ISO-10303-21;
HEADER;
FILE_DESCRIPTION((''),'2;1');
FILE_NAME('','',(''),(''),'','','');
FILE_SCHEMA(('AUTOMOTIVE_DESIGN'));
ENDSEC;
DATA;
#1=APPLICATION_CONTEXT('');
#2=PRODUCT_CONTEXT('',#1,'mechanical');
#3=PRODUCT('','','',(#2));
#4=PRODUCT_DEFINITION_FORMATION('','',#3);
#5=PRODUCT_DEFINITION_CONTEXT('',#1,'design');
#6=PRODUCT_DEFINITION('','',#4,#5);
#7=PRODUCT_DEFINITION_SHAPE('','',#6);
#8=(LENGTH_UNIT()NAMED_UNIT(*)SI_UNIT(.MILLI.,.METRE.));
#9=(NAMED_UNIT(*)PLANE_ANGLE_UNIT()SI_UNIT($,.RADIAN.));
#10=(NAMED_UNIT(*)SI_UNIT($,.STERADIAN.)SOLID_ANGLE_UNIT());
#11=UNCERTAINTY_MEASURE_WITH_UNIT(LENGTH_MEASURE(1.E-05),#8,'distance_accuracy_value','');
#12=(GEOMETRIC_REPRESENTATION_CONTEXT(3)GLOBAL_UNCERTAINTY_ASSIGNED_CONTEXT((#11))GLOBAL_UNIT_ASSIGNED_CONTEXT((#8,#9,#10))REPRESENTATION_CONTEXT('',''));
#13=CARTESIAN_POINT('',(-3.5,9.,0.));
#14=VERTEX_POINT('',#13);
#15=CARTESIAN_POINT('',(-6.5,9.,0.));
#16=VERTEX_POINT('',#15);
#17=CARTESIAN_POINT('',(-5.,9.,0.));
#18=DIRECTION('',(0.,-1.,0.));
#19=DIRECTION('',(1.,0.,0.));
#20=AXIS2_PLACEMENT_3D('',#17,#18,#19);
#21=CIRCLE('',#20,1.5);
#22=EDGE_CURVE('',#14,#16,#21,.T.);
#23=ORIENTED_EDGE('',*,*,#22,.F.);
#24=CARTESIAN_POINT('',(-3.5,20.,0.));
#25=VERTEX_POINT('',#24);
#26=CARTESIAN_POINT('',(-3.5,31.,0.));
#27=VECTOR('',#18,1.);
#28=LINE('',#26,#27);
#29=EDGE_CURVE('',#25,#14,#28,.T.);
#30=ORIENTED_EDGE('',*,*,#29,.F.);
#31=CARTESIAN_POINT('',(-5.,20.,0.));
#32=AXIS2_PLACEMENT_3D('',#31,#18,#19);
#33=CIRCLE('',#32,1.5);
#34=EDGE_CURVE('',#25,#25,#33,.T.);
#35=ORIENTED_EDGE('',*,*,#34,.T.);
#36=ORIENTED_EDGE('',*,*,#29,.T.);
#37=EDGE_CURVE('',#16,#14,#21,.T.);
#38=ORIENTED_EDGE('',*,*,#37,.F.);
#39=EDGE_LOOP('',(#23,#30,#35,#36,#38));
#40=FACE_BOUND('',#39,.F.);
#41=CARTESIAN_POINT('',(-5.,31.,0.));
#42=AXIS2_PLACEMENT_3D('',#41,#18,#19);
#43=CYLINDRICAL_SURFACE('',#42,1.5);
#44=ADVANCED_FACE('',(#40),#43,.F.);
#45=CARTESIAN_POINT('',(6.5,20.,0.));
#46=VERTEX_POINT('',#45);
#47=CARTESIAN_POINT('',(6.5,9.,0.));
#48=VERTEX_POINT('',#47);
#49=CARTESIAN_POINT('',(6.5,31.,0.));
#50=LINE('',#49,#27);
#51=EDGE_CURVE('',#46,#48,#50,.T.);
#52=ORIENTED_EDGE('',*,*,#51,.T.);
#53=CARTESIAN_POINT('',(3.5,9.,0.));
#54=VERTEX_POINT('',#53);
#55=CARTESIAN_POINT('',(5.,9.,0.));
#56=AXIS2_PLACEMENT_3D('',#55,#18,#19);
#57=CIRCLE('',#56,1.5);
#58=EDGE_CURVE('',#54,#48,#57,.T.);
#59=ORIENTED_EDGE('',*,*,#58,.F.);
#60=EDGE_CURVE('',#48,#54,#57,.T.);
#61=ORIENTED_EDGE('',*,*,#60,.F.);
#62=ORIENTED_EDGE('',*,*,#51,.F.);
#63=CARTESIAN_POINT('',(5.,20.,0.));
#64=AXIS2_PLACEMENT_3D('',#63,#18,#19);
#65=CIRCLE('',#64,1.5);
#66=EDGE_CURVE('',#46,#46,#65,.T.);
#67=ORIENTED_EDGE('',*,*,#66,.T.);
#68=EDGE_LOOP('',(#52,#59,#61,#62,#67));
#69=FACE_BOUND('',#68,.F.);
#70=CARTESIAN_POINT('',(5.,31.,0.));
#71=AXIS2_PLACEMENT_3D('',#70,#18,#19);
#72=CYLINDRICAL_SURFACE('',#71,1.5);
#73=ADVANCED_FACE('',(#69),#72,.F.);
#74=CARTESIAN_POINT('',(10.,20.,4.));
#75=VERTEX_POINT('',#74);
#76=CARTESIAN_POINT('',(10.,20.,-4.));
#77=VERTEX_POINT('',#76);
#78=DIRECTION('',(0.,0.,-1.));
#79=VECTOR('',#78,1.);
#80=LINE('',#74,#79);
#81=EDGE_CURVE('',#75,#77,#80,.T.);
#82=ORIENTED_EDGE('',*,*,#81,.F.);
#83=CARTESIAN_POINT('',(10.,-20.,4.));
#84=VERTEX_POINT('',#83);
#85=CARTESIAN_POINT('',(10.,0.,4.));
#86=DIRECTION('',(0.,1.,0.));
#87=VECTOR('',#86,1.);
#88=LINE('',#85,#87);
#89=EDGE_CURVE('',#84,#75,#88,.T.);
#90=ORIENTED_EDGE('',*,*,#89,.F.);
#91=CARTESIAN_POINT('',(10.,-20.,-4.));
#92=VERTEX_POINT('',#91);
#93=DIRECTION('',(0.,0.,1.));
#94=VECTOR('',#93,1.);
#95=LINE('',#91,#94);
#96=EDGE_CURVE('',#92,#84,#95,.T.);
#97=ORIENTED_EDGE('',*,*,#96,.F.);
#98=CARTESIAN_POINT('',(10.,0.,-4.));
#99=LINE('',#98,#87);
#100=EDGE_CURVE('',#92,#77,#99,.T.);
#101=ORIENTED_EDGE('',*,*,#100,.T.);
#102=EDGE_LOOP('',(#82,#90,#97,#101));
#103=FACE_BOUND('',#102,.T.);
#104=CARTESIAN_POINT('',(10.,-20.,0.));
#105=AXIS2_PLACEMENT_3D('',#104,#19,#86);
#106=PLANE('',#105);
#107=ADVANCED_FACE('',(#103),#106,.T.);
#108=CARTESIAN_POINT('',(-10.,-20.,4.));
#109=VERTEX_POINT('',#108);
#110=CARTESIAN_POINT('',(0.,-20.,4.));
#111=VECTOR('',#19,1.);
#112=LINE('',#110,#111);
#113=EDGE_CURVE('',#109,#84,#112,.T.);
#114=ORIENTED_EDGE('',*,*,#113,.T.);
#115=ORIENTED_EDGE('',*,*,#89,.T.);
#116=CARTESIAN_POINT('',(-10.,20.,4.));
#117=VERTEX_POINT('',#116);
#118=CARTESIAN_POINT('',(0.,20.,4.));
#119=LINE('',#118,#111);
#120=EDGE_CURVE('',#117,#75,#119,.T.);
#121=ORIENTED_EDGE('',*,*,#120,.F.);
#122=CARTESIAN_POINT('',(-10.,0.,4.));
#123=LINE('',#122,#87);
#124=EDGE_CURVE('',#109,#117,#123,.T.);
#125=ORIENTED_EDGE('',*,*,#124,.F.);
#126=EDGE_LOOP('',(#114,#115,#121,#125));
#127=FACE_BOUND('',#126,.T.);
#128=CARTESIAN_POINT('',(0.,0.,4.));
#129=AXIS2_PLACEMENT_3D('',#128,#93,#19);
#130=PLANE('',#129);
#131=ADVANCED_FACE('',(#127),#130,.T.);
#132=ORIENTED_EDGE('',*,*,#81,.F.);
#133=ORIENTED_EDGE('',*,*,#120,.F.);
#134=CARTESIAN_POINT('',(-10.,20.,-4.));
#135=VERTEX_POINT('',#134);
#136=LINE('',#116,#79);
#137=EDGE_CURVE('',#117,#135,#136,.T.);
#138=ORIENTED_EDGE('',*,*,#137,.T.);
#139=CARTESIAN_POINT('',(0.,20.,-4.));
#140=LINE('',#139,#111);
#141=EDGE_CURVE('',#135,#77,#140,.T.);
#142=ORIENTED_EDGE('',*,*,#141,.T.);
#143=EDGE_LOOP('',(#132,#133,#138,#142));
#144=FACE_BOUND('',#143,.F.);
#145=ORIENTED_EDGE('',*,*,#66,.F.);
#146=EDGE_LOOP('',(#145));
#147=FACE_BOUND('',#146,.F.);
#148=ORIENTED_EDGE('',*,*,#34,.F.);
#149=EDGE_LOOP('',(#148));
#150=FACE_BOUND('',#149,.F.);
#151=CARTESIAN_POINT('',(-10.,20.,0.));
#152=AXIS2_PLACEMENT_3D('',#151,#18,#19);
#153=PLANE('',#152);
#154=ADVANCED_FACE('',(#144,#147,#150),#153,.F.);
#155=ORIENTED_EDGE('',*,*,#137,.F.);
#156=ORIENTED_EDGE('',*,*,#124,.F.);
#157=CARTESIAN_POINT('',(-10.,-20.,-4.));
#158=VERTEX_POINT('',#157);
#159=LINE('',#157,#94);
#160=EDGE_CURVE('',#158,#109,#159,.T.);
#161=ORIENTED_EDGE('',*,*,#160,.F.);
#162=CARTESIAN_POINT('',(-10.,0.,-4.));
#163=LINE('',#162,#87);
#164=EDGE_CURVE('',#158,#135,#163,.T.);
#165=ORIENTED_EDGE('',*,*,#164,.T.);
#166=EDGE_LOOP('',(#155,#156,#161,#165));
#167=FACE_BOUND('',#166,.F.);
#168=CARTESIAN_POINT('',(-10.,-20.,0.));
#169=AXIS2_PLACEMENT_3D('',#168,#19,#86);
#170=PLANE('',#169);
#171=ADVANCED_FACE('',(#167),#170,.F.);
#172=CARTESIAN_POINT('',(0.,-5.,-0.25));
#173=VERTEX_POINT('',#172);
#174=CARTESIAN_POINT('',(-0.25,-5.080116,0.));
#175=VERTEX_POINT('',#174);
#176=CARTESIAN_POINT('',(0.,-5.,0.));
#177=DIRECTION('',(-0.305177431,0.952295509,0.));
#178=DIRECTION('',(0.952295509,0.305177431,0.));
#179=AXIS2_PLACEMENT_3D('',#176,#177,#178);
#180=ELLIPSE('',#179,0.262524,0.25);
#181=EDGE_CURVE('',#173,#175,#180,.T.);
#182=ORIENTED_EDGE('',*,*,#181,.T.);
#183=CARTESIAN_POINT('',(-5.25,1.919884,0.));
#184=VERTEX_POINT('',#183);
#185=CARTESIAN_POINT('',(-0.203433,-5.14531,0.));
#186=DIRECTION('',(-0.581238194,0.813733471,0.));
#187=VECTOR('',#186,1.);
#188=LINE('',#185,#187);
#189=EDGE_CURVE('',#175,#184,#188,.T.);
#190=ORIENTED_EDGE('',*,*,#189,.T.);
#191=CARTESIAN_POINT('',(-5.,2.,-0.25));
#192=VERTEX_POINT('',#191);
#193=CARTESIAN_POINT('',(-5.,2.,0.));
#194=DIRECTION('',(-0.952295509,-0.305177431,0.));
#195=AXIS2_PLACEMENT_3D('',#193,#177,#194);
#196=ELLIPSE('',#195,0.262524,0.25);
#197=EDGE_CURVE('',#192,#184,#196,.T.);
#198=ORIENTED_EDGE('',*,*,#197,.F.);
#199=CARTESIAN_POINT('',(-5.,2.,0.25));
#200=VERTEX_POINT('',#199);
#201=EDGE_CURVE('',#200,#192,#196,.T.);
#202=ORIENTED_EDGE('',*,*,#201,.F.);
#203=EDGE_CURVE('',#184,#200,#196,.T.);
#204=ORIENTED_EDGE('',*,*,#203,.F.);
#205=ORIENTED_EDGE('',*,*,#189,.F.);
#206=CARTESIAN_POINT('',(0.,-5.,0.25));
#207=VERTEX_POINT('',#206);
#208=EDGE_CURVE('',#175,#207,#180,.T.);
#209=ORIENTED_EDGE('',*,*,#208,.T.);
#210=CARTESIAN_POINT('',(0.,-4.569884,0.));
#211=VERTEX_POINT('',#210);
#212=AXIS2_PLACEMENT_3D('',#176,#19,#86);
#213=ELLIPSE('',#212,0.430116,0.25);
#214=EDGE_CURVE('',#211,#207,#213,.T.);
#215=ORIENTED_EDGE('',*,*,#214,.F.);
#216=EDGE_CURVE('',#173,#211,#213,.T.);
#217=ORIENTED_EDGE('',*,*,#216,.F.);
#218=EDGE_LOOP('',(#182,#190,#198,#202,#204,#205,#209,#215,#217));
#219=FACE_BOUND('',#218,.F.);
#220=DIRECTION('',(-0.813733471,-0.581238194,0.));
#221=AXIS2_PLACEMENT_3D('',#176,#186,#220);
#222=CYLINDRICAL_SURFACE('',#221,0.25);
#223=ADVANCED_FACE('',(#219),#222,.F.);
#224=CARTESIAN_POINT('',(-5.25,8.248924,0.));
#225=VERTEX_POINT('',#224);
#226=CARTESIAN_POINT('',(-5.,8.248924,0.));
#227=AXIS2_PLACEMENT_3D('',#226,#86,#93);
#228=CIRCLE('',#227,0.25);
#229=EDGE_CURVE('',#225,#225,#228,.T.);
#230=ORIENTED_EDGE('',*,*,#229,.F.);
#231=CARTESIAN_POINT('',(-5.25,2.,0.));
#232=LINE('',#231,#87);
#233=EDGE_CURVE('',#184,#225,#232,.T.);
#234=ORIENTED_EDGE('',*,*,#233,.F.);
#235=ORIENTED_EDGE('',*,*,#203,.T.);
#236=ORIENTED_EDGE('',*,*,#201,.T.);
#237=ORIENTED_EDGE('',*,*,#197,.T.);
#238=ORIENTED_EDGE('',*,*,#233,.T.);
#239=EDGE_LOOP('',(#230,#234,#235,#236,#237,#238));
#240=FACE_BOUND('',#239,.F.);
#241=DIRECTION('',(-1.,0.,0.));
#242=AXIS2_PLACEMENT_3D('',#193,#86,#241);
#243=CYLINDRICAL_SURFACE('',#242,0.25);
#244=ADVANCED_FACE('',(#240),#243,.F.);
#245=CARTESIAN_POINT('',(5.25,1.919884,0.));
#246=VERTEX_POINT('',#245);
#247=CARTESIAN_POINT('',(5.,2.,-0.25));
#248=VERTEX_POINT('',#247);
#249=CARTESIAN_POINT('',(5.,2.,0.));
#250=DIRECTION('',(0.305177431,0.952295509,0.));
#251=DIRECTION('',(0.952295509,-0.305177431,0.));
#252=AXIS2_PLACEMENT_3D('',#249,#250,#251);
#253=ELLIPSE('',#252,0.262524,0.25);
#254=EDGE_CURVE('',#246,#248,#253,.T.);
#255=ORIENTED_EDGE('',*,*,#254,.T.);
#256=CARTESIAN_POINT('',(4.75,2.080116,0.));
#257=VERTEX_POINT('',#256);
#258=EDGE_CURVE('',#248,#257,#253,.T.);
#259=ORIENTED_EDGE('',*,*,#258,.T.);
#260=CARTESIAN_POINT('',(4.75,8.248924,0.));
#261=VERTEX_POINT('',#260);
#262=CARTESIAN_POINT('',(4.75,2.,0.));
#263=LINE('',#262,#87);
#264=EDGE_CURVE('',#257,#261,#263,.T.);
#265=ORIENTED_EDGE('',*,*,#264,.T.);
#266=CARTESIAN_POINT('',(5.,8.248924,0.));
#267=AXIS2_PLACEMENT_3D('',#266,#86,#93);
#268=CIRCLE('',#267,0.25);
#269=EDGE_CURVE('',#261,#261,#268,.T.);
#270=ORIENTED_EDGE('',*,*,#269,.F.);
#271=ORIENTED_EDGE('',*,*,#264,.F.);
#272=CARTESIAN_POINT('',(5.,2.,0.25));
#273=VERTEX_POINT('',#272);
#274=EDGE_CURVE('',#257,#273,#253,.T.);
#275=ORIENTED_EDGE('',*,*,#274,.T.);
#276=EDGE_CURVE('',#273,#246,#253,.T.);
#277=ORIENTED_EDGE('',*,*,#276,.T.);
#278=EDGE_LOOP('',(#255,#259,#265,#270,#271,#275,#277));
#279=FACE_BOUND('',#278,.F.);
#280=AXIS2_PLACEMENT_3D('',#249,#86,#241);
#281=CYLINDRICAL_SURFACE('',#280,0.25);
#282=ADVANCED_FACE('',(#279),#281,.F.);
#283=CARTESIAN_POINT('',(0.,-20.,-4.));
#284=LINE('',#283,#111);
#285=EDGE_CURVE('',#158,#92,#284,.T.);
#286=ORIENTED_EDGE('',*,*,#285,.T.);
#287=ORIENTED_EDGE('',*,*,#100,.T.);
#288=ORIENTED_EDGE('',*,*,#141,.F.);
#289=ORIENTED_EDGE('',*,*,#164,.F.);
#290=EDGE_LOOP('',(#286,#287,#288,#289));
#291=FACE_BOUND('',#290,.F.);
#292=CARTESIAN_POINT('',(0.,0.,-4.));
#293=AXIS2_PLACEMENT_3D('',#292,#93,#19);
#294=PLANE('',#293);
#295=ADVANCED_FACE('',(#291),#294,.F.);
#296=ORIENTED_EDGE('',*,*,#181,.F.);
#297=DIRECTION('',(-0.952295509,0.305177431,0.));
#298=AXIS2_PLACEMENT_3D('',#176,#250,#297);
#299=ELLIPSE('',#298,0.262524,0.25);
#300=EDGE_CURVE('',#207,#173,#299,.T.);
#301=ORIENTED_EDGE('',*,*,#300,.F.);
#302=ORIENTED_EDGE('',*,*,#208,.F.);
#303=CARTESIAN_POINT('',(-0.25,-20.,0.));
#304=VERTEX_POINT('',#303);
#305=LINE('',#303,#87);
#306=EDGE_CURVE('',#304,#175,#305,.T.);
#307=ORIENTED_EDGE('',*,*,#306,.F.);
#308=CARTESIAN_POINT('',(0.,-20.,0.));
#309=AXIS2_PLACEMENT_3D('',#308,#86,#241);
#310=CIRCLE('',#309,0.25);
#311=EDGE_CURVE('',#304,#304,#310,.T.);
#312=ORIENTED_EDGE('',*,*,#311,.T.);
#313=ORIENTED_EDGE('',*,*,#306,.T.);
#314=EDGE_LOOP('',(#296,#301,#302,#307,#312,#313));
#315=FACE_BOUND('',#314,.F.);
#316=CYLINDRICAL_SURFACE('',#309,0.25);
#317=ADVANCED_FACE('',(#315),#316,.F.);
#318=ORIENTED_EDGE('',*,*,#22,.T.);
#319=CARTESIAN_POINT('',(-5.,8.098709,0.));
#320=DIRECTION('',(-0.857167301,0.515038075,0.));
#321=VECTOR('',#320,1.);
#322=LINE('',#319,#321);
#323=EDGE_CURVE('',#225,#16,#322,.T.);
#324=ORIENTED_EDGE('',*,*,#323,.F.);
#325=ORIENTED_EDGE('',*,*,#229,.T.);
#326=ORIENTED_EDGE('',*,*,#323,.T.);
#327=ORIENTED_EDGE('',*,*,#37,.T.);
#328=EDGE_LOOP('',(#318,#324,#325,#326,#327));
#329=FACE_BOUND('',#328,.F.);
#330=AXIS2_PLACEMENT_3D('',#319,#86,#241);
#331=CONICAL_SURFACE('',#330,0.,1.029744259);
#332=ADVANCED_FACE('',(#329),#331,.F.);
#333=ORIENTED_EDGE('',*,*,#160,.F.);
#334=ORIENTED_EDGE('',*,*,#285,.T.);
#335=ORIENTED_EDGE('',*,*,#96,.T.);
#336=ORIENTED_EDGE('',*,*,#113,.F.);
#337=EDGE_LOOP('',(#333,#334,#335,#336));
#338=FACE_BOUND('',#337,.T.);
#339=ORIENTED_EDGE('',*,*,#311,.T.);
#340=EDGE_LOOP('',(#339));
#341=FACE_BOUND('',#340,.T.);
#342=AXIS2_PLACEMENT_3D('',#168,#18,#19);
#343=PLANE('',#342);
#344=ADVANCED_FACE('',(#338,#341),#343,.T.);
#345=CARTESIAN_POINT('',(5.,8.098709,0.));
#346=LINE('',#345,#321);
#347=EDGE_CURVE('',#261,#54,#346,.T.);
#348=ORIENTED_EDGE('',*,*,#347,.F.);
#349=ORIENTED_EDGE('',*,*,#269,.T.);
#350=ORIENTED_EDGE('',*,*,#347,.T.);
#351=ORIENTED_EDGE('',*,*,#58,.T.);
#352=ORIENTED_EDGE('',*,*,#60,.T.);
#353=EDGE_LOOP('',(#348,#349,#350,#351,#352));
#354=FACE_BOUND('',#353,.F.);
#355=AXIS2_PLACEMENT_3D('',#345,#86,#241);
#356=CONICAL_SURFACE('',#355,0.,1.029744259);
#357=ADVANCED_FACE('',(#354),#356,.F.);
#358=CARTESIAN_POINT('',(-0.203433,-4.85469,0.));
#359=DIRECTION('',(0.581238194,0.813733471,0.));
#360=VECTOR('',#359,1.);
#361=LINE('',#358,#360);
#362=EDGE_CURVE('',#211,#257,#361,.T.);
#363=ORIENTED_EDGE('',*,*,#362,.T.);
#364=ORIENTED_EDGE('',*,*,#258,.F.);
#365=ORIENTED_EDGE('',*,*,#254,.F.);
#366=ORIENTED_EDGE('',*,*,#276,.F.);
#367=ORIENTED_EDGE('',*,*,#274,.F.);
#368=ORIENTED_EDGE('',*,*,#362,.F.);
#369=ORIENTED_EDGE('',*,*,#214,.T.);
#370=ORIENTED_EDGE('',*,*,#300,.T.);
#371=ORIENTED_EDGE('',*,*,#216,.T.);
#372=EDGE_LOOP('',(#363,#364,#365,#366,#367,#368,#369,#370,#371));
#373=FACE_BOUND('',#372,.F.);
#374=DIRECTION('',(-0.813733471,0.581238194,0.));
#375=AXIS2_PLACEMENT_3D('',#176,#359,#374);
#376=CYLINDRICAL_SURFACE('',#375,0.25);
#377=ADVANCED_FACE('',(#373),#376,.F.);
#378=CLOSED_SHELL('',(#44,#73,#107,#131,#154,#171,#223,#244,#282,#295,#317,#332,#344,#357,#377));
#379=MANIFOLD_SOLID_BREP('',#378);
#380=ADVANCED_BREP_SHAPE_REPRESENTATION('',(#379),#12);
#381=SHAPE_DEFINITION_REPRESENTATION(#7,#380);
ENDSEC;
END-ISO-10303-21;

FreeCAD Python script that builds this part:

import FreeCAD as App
import Part
import Sketcher


def add_polygon(sketch, points):
    """Adds a closed chain of lines whose ends are joined by coincident constraints."""
    first, n = sketch.GeometryCount, len(points)
    for a, b in zip(points, points[1:] + points[:1]):
        sketch.addGeometry(Part.LineSegment(App.Vector(*a, 0), App.Vector(*b, 0)), False)
    for i in range(n):
        sketch.addConstraint(Sketcher.Constraint("Coincident", first + i, 2, first + (i + 1) % n, 1))

doc = App.newDocument("Part")
body = doc.addObject("PartDesign::Body", "Body")

# Sketch on XY plane
sketch1 = body.newObject("Sketcher::SketchObject", "Sketch")
sketch1.AttachmentSupport = (doc.getObject("XY_Plane"), [""])
sketch1.MapMode = "FlatFace"
add_polygon(sketch1, [(-10, 20), (-10, -20), (10, -20), (10, 20)])  # lines 0-3
sketch1.addConstraint(Sketcher.Constraint("Vertical", 0))
sketch1.addConstraint(Sketcher.Constraint("Horizontal", 1))
sketch1.addConstraint(Sketcher.Constraint("Vertical", 2))
sketch1.addConstraint(Sketcher.Constraint("Horizontal", 3))
sketch1.addConstraint(Sketcher.Constraint("Symmetric", 0, 2, 2, 2, -1, 1))
sketch1.addConstraint(Sketcher.Constraint("DistanceX", 1, 1, 1, 2, 20.0))
sketch1.addConstraint(Sketcher.Constraint("DistanceY", 0, 2, 0, 1, 40.0))
pad1 = body.newObject("PartDesign::Pad", "Pad")
pad1.Profile = sketch1
pad1.Type = "TwoLengths"
pad1.Length = 4
pad1.Length2 = 4

# Sketch on XZ plane
sketch2 = body.newObject("Sketcher::SketchObject", "Sketch001")
sketch2.AttachmentSupport = (doc.getObject("XZ_Plane"), [""])
sketch2.MapMode = "FlatFace"
sketch2.AttachmentOffset = App.Placement(App.Vector(0, 0, -20), App.Rotation())
sketch2.addGeometry(Part.Circle(App.Vector(5, 0, 0), App.Vector(0, 0, 1), 0.25), False)
sketch2.addConstraint(Sketcher.Constraint("PointOnObject", 0, 3, -1))
sketch2.addConstraint(Sketcher.Constraint("Diameter", 0, 0.5))
sketch2.addConstraint(Sketcher.Constraint("DistanceX", -1, 1, 0, 3, 5.0))

# Sketch on XY plane
sketch3 = body.newObject("Sketcher::SketchObject", "Sketch002")
sketch3.AttachmentSupport = (doc.getObject("XY_Plane"), [""])
sketch3.MapMode = "FlatFace"
sketch3.addGeometry(Part.LineSegment(App.Vector(0, -20, 0), App.Vector(0, -5, 0)), False)
sketch3.addGeometry(Part.LineSegment(App.Vector(0, -5, 0), App.Vector(5, 2, 0)), False)
sketch3.addGeometry(Part.LineSegment(App.Vector(5, 2, 0), App.Vector(5, 20, 0)), False)
sketch3.addConstraint(Sketcher.Constraint("Coincident", 0, 2, 1, 1))
sketch3.addConstraint(Sketcher.Constraint("Coincident", 1, 2, 2, 1))
sketch3.addConstraint(Sketcher.Constraint("Vertical", 0))
sketch3.addConstraint(Sketcher.Constraint("Vertical", 2))
sketch3.addConstraint(Sketcher.Constraint("PointOnObject", 0, 1, -2))
sketch3.addConstraint(Sketcher.Constraint("DistanceY", 0, 1, 0, 2, 15.0))
sketch3.addConstraint(Sketcher.Constraint("DistanceY", 2, 1, 2, 2, 18.0))
sketch3.addConstraint(Sketcher.Constraint("DistanceY", 0, 1, -1, 1, 20.0))
sketch3.addConstraint(Sketcher.Constraint("DistanceX", -1, 1, 1, 2, 5.0))
sketch3.addConstraint(Sketcher.Constraint("DistanceY", -1, 1, 1, 2, 2.0))
doc.recompute()

subtractivepipe = body.newObject("PartDesign::SubtractivePipe", "SubtractivePipe")
subtractivepipe.Profile = sketch2
subtractivepipe.Spine = (sketch3, ["Edge1", "Edge2", "Edge3"])
subtractivepipe.Transition = "Right corner"

# Sketch on XZ plane
sketch4 = body.newObject("Sketcher::SketchObject", "Sketch003")
sketch4.AttachmentSupport = (doc.getObject("XZ_Plane"), [""])
sketch4.MapMode = "FlatFace"
sketch4.AttachmentOffset = App.Placement(App.Vector(0, 0, -20), App.Rotation())
sketch4.addGeometry(Part.Circle(App.Vector(-5, 0, 0), App.Vector(0, 0, 1), 0.25), False)
sketch4.addConstraint(Sketcher.Constraint("PointOnObject", 0, 3, -1))
sketch4.addConstraint(Sketcher.Constraint("Diameter", 0, 0.5))
sketch4.addConstraint(Sketcher.Constraint("DistanceX", 0, 3, -1, 1, 5.0))

# Sketch on XY plane
sketch5 = body.newObject("Sketcher::SketchObject", "Sketch004")
sketch5.AttachmentSupport = (doc.getObject("XY_Plane"), [""])
sketch5.MapMode = "FlatFace"
sketch5.addGeometry(Part.LineSegment(App.Vector(0, -5, 0), App.Vector(-5, 2, 0)), False)
sketch5.addGeometry(Part.LineSegment(App.Vector(-5, 2, 0), App.Vector(-5, 20, 0)), False)
sketch5.addConstraint(Sketcher.Constraint("Coincident", 0, 2, 1, 1))
sketch5.addConstraint(Sketcher.Constraint("Vertical", 1))
sketch5.addConstraint(Sketcher.Constraint("PointOnObject", 0, 1, -2))
sketch5.addConstraint(Sketcher.Constraint("DistanceY", 1, 1, 1, 2, 18.0))
sketch5.addConstraint(Sketcher.Constraint("DistanceY", 0, 1, -1, 1, 5.0))
sketch5.addConstraint(Sketcher.Constraint("DistanceX", 0, 2, -1, 1, 5.0))
sketch5.addConstraint(Sketcher.Constraint("DistanceY", -1, 1, 0, 2, 2.0))
doc.recompute()

subtractivepipe2 = body.newObject("PartDesign::SubtractivePipe", "SubtractivePipe001")
subtractivepipe2.Profile = sketch4
subtractivepipe2.Spine = (sketch5, ["Edge1", "Edge2"])
subtractivepipe2.Transition = "Right corner"

# Sketch on XZ plane
sketch6 = body.newObject("Sketcher::SketchObject", "Sketch005")
sketch6.AttachmentSupport = (doc.getObject("XZ_Plane"), [""])
sketch6.MapMode = "FlatFace"
sketch6.AttachmentOffset = App.Placement(App.Vector(0, 0, -20), App.Rotation())
sketch6.addGeometry(Part.Circle(App.Vector(5, 0, 0), App.Vector(0, 0, 1), 1.5), False)
sketch6.addConstraint(Sketcher.Constraint("PointOnObject", 0, 3, -1))
sketch6.addConstraint(Sketcher.Constraint("Diameter", 0, 3.0))
sketch6.addConstraint(Sketcher.Constraint("DistanceX", -1, 1, 0, 3, 5.0))
doc.recompute()
hole = body.newObject("PartDesign::Hole", "Hole")
hole.Profile = sketch6
hole.ThreadType = "None"
hole.Diameter = 3
hole.DepthType = "Dimension"
hole.Depth = 11
hole.DrillPoint = "Angled"
hole.DrillPointAngle = 118
hole.Reversed = True

# Sketch on XZ plane
sketch7 = body.newObject("Sketcher::SketchObject", "Sketch006")
sketch7.AttachmentSupport = (doc.getObject("XZ_Plane"), [""])
sketch7.MapMode = "FlatFace"
sketch7.AttachmentOffset = App.Placement(App.Vector(0, 0, -20), App.Rotation())
sketch7.addGeometry(Part.Circle(App.Vector(-5, 0, 0), App.Vector(0, 0, 1), 1.5), False)
sketch7.addConstraint(Sketcher.Constraint("PointOnObject", 0, 3, -1))
sketch7.addConstraint(Sketcher.Constraint("Diameter", 0, 3.0))
sketch7.addConstraint(Sketcher.Constraint("DistanceX", 0, 3, -1, 1, 5.0))
doc.recompute()
hole2 = body.newObject("PartDesign::Hole", "Hole001")
hole2.Profile = sketch7
hole2.ThreadType = "None"
hole2.Diameter = 3
hole2.DepthType = "Dimension"
hole2.Depth = 11
hole2.DrillPoint = "Angled"
hole2.DrillPointAngle = 118
hole2.Reversed = True

doc.recompute()
